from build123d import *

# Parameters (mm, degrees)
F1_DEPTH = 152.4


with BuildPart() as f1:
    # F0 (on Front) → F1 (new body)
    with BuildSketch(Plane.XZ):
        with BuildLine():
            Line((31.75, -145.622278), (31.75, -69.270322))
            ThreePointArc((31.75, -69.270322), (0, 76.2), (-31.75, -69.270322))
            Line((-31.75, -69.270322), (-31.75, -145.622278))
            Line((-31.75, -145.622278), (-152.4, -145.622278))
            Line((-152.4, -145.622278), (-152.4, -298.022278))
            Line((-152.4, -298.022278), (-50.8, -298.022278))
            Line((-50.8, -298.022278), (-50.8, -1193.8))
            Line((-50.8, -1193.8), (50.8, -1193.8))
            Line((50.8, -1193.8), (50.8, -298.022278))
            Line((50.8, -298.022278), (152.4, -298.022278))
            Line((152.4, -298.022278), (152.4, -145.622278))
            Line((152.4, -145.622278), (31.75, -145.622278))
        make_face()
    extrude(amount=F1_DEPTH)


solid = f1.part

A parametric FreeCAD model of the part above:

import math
import FreeCAD as App
import Part
import Sketcher
Q = App.Units.Quantity

doc = App.newDocument("Part")
params = doc.addObject("Spreadsheet::Sheet", "Params")
for row, (alias, value) in enumerate([
    ("sketch1_radius", "3 in"),
    ("sketch1_width", "4 in"),
    ("sketch1_height", "6 in"),
    ("sketch1_width2", "4.75 in"),
    ("pad1_length", "6 in"),
], start=1):
    params.set(f"A{row}", alias)
    params.set(f"B{row}", "=" + value)
    params.setAlias(f"B{row}", alias)

body = doc.addObject("PartDesign::Body", "Body")

# Sketch on XZ plane
sketch1 = body.newObject("Sketcher::SketchObject", "Sketch")
sketch1.AttachmentSupport = (doc.getObject("XZ_Plane"), [""])
sketch1.MapMode = "FlatFace"
sketch1.addGeometry(Part.LineSegment(App.Vector(31.75, -145.622278, 0), App.Vector(31.75, -69.270322, 0)), False)
sketch1.addGeometry(Part.ArcOfCircle(Part.Circle(App.Vector(0, 0, 0), App.Vector(0, 0, 1), 76.2), math.radians(-65.375682), math.radians(245.375682)), False)
sketch1.addGeometry(Part.LineSegment(App.Vector(-31.75, -69.270322, 0), App.Vector(-31.75, -145.622278, 0)), False)
sketch1.addGeometry(Part.LineSegment(App.Vector(-31.75, -145.622278, 0), App.Vector(-152.4, -145.622278, 0)), False)
sketch1.addGeometry(Part.LineSegment(App.Vector(-152.4, -145.622278, 0), App.Vector(-152.4, -298.022278, 0)), False)
sketch1.addGeometry(Part.LineSegment(App.Vector(-152.4, -298.022278, 0), App.Vector(-50.8, -298.022278, 0)), False)
sketch1.addGeometry(Part.LineSegment(App.Vector(-50.8, -298.022278, 0), App.Vector(-50.8, -1193.8, 0)), False)
sketch1.addGeometry(Part.LineSegment(App.Vector(-50.8, -1193.8, 0), App.Vector(50.8, -1193.8, 0)), False)
sketch1.addGeometry(Part.LineSegment(App.Vector(50.8, -1193.8, 0), App.Vector(50.8, -298.022278, 0)), False)
sketch1.addGeometry(Part.LineSegment(App.Vector(50.8, -298.022278, 0), App.Vector(152.4, -298.022278, 0)), False)
sketch1.addGeometry(Part.LineSegment(App.Vector(152.4, -298.022278, 0), App.Vector(152.4, -145.622278, 0)), False)
sketch1.addGeometry(Part.LineSegment(App.Vector(152.4, -145.622278, 0), App.Vector(31.75, -145.622278, 0)), False)
sketch1.addConstraint(Sketcher.Constraint("Coincident", 0, 2, 1, 1))
sketch1.addConstraint(Sketcher.Constraint("Coincident", 1, 2, 2, 1))
sketch1.addConstraint(Sketcher.Constraint("Coincident", 2, 2, 3, 1))
sketch1.addConstraint(Sketcher.Constraint("Coincident", 3, 2, 4, 1))
sketch1.addConstraint(Sketcher.Constraint("Coincident", 4, 2, 5, 1))
sketch1.addConstraint(Sketcher.Constraint("Coincident", 5, 2, 6, 1))
sketch1.addConstraint(Sketcher.Constraint("Coincident", 6, 2, 7, 1))
sketch1.addConstraint(Sketcher.Constraint("Coincident", 7, 2, 8, 1))
sketch1.addConstraint(Sketcher.Constraint("Coincident", 8, 2, 9, 1))
sketch1.addConstraint(Sketcher.Constraint("Coincident", 9, 2, 10, 1))
sketch1.addConstraint(Sketcher.Constraint("Coincident", 10, 2, 11, 1))
sketch1.addConstraint(Sketcher.Constraint("Coincident", 11, 2, 0, 1))
sketch1.addConstraint(Sketcher.Constraint("Vertical", 0))
sketch1.addConstraint(Sketcher.Constraint("Vertical", 2))
sketch1.addConstraint(Sketcher.Constraint("Horizontal", 3))
sketch1.addConstraint(Sketcher.Constraint("Vertical", 4))
sketch1.addConstraint(Sketcher.Constraint("Horizontal", 5))
sketch1.addConstraint(Sketcher.Constraint("Vertical", 6))
sketch1.addConstraint(Sketcher.Constraint("Horizontal", 7))
sketch1.addConstraint(Sketcher.Constraint("Vertical", 8))
sketch1.addConstraint(Sketcher.Constraint("Horizontal", 9))
sketch1.addConstraint(Sketcher.Constraint("Vertical", 10))
sketch1.addConstraint(Sketcher.Constraint("Horizontal", 11))
sketch1.addConstraint(Sketcher.Constraint("Coincident", 1, 3, -1, 1))
sketch1.addConstraint(Sketcher.Constraint("Symmetric", 5, 2, 8, 2, -2))
sketch1.addConstraint(Sketcher.Constraint("Symmetric", 3, 2, 10, 2, -2))
sketch1.addConstraint(Sketcher.Constraint("Horizontal", 0, 2, 1, 2))
sketch1.addConstraint(Sketcher.Constraint("Equal", 5, 7))
sketch1.addConstraint(Sketcher.Constraint("Radius", 1, Q("3 in")))
sketch1.addConstraint(Sketcher.Constraint("DistanceX", 5, 1, 5, 2, Q("4 in")))
sketch1.addConstraint(Sketcher.Constraint("DistanceY", 4, 2, 4, 1, Q("6 in")))
sketch1.addConstraint(Sketcher.Constraint("DistanceY", 6, 2, -1, 1, Q("47 in")))
sketch1.addConstraint(Sketcher.Constraint("DistanceX", 3, 2, 3, 1, Q("4.75 in")))
sketch1.addConstraint(Sketcher.Constraint("DistanceY", 6, 2, 6, 1, 895.777722))
sketch1.setExpression("Constraints[28]", "Params.sketch1_radius")
sketch1.setExpression("Constraints[29]", "Params.sketch1_width")
sketch1.setExpression("Constraints[30]", "Params.sketch1_height")
sketch1.setExpression("Constraints[32]", "Params.sketch1_width2")
pad1 = body.newObject("PartDesign::Pad", "Pad")
pad1.Profile = sketch1
pad1.setExpression("Length", "Params.pad1_length")

doc.recompute()
